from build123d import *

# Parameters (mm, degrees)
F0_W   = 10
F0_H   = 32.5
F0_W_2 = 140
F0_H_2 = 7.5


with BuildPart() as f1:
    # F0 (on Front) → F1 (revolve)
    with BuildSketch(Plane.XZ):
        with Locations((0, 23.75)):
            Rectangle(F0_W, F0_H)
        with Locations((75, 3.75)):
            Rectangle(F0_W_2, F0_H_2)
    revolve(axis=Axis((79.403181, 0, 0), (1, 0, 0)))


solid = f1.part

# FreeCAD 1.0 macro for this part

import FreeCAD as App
import Part
import Sketcher
from FreeCAD import Vector


def add_polygon(sketch, points):
    """Adds a closed chain of lines whose ends are joined by coincident constraints."""
    first, n = sketch.GeometryCount, len(points)
    for a, b in zip(points, points[1:] + points[:1]):
        sketch.addGeometry(Part.LineSegment(App.Vector(*a, 0), App.Vector(*b, 0)), False)
    for i in range(n):
        sketch.addConstraint(Sketcher.Constraint("Coincident", first + i, 2, first + (i + 1) % n, 1))

doc = App.newDocument("Part")
params = doc.addObject("Spreadsheet::Sheet", "Params")
for row, (alias, value) in enumerate([
    ("sketch1_width", "10 mm"),
    ("sketch1_width2", "140 mm"),
    ("sketch1_height", "32.5 mm"),
    ("sketch1_height2", "7.5 mm"),
    ("revolution_angle", "360 deg"),
], start=1):
    params.set(f"A{row}", alias)
    params.set(f"B{row}", "=" + value)
    params.setAlias(f"B{row}", alias)

body = doc.addObject("PartDesign::Body", "Body")
body.AllowCompound = True

# Sketch on XZ plane
sketch1 = body.newObject("Sketcher::SketchObject", "Sketch")
sketch1.AttachmentSupport = (doc.getObject("XZ_Plane"), [""])
sketch1.MapMode = "FlatFace"
add_polygon(sketch1, [(-5, 40), (-5, 8), (5, 8), (5, 40)])  # lines 0-3
add_polygon(sketch1, [(5, 8), (5, 0), (145, 0), (145, 8)])  # lines 4-7
sketch1.addConstraint(Sketcher.Constraint("Vertical", 0))
sketch1.addConstraint(Sketcher.Constraint("Horizontal", 1))
sketch1.addConstraint(Sketcher.Constraint("Vertical", 2))
sketch1.addConstraint(Sketcher.Constraint("Horizontal", 3))
sketch1.addConstraint(Sketcher.Constraint("Vertical", 4))
sketch1.addConstraint(Sketcher.Constraint("Horizontal", 5))
sketch1.addConstraint(Sketcher.Constraint("Vertical", 6))
sketch1.addConstraint(Sketcher.Constraint("Horizontal", 7))
sketch1.addConstraint(Sketcher.Constraint("Coincident", 7, 2, 1, 2))
sketch1.addConstraint(Sketcher.Constraint("PointOnObject", 4, 2, -1))
sketch1.addConstraint(Sketcher.Constraint("DistanceX", 1, 1, 1, 2, 10.0))
sketch1.addConstraint(Sketcher.Constraint("DistanceX", 5, 1, 5, 2, 140.0))
sketch1.addConstraint(Sketcher.Constraint("DistanceY", 0, 2, 0, 1, 32.5))
sketch1.addConstraint(Sketcher.Constraint("DistanceY", 4, 2, 4, 1, 7.5))
sketch1.addConstraint(Sketcher.Constraint("DistanceX", 0, 2, -1, 1, 5.0))
sketch1.setExpression("Constraints[18]", "Params.sketch1_width")
sketch1.setExpression("Constraints[19]", "Params.sketch1_width2")
sketch1.setExpression("Constraints[20]", "Params.sketch1_height")
sketch1.setExpression("Constraints[21]", "Params.sketch1_height2")
revolution = body.newObject("PartDesign::Revolution", "Revolution")
revolution.Profile = sketch1
revolution.ReferenceAxis = (sketch1, ["H_Axis"])
revolution.setExpression("Angle", "Params.revolution_angle")

doc.recompute()
